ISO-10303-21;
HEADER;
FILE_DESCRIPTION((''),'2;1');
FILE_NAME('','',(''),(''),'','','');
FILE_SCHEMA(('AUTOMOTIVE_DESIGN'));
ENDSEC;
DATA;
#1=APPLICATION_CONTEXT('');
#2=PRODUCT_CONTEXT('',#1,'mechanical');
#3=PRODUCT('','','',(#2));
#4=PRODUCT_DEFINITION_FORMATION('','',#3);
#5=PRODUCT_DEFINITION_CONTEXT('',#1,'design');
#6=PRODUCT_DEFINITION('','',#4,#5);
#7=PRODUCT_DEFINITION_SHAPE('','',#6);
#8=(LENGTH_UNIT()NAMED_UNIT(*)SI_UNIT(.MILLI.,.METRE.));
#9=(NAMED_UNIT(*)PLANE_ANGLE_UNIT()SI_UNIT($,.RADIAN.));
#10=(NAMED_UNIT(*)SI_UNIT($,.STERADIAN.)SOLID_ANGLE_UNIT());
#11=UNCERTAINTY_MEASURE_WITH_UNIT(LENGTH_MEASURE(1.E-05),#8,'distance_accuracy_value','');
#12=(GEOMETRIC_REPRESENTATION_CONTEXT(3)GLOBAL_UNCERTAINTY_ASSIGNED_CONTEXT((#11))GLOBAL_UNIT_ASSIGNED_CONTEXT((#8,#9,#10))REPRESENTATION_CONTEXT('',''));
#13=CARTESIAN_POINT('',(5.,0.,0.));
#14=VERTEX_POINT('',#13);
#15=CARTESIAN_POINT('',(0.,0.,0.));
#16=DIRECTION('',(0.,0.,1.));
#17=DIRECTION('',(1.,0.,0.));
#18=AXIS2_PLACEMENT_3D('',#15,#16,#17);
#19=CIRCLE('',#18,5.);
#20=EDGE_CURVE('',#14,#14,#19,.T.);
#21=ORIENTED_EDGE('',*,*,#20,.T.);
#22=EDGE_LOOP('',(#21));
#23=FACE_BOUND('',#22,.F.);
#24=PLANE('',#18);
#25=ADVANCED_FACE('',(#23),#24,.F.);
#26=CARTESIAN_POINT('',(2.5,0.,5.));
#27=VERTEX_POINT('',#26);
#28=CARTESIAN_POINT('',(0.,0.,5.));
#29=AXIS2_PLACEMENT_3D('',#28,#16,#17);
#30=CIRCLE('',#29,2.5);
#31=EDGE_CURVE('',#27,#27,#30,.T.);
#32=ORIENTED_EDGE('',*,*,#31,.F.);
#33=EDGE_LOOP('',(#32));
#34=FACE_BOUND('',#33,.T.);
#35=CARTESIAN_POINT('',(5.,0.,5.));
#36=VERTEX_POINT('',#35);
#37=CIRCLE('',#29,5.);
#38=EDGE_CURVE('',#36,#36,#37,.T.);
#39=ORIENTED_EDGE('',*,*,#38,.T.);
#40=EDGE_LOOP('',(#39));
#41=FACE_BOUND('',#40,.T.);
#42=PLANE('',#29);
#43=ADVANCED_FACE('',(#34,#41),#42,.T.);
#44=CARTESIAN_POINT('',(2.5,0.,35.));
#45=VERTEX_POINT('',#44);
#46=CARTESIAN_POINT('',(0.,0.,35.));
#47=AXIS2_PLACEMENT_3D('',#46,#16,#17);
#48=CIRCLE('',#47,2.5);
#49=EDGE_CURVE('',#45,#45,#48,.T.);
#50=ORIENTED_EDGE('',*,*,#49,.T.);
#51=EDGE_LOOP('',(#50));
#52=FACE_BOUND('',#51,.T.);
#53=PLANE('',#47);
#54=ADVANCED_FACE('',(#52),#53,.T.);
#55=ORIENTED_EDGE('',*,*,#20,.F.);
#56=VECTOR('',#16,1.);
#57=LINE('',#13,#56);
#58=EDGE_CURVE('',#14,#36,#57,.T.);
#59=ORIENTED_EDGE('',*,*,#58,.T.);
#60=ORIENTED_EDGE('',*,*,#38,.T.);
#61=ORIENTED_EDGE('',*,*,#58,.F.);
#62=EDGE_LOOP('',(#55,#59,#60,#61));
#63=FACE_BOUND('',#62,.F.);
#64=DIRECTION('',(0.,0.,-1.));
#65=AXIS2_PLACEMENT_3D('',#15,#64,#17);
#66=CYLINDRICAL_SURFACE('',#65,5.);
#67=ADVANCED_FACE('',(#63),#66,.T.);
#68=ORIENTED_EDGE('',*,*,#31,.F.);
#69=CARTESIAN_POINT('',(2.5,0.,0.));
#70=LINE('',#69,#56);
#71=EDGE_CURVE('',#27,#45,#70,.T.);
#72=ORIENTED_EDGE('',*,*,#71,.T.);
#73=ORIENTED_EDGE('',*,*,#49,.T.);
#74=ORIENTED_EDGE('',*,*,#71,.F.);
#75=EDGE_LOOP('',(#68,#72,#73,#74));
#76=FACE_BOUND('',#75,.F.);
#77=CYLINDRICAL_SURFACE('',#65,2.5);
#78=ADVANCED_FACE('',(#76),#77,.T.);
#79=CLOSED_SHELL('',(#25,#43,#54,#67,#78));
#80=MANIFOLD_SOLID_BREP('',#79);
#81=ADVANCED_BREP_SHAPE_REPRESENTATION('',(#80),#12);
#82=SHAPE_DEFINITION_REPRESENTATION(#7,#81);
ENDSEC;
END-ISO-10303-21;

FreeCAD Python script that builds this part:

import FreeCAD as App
import Part
import Sketcher
from FreeCAD import Vector

doc = App.newDocument("Part")
body = doc.addObject("PartDesign::Body", "Body")

# Sketch on XY plane
sketch1 = body.newObject("Sketcher::SketchObject", "Sketch")
sketch1.AttachmentSupport = (doc.getObject("XY_Plane"), [""])
sketch1.MapMode = "FlatFace"
sketch1.addGeometry(Part.Circle(Vector(0, 0, 0), Vector(0, 0, 1), 2.5), False)
sketch1.addConstraint([
    Sketcher.Constraint("Coincident", 0, 3, -1, 1),
    Sketcher.Constraint("Diameter", 0, 5.0),
])
pad1 = body.newObject("PartDesign::Pad", "Pad")
pad1.Profile = sketch1
pad1.Length = 35

# Sketch on XY plane
sketch2 = body.newObject("Sketcher::SketchObject", "Sketch001")
sketch2.AttachmentSupport = (doc.getObject("XY_Plane"), [""])
sketch2.MapMode = "FlatFace"
sketch2.addGeometry([
    Part.Circle(Vector(0, 0, 0), Vector(0, 0, 1), 5),
    Part.Circle(Vector(0, 0, 0), Vector(0, 0, 1), 2.5),
], False)
sketch2.addConstraint([
    Sketcher.Constraint("Coincident", 0, 3, -1, 1),
    Sketcher.Constraint("Coincident", 1, 3, -1, 1),
    Sketcher.Constraint("Diameter", 0, 10.0),
    Sketcher.Constraint("Diameter", 1, 5.0),
])
pad2 = body.newObject("PartDesign::Pad", "Pad001")
pad2.Profile = sketch2
pad2.Length = 5

doc.recompute()
